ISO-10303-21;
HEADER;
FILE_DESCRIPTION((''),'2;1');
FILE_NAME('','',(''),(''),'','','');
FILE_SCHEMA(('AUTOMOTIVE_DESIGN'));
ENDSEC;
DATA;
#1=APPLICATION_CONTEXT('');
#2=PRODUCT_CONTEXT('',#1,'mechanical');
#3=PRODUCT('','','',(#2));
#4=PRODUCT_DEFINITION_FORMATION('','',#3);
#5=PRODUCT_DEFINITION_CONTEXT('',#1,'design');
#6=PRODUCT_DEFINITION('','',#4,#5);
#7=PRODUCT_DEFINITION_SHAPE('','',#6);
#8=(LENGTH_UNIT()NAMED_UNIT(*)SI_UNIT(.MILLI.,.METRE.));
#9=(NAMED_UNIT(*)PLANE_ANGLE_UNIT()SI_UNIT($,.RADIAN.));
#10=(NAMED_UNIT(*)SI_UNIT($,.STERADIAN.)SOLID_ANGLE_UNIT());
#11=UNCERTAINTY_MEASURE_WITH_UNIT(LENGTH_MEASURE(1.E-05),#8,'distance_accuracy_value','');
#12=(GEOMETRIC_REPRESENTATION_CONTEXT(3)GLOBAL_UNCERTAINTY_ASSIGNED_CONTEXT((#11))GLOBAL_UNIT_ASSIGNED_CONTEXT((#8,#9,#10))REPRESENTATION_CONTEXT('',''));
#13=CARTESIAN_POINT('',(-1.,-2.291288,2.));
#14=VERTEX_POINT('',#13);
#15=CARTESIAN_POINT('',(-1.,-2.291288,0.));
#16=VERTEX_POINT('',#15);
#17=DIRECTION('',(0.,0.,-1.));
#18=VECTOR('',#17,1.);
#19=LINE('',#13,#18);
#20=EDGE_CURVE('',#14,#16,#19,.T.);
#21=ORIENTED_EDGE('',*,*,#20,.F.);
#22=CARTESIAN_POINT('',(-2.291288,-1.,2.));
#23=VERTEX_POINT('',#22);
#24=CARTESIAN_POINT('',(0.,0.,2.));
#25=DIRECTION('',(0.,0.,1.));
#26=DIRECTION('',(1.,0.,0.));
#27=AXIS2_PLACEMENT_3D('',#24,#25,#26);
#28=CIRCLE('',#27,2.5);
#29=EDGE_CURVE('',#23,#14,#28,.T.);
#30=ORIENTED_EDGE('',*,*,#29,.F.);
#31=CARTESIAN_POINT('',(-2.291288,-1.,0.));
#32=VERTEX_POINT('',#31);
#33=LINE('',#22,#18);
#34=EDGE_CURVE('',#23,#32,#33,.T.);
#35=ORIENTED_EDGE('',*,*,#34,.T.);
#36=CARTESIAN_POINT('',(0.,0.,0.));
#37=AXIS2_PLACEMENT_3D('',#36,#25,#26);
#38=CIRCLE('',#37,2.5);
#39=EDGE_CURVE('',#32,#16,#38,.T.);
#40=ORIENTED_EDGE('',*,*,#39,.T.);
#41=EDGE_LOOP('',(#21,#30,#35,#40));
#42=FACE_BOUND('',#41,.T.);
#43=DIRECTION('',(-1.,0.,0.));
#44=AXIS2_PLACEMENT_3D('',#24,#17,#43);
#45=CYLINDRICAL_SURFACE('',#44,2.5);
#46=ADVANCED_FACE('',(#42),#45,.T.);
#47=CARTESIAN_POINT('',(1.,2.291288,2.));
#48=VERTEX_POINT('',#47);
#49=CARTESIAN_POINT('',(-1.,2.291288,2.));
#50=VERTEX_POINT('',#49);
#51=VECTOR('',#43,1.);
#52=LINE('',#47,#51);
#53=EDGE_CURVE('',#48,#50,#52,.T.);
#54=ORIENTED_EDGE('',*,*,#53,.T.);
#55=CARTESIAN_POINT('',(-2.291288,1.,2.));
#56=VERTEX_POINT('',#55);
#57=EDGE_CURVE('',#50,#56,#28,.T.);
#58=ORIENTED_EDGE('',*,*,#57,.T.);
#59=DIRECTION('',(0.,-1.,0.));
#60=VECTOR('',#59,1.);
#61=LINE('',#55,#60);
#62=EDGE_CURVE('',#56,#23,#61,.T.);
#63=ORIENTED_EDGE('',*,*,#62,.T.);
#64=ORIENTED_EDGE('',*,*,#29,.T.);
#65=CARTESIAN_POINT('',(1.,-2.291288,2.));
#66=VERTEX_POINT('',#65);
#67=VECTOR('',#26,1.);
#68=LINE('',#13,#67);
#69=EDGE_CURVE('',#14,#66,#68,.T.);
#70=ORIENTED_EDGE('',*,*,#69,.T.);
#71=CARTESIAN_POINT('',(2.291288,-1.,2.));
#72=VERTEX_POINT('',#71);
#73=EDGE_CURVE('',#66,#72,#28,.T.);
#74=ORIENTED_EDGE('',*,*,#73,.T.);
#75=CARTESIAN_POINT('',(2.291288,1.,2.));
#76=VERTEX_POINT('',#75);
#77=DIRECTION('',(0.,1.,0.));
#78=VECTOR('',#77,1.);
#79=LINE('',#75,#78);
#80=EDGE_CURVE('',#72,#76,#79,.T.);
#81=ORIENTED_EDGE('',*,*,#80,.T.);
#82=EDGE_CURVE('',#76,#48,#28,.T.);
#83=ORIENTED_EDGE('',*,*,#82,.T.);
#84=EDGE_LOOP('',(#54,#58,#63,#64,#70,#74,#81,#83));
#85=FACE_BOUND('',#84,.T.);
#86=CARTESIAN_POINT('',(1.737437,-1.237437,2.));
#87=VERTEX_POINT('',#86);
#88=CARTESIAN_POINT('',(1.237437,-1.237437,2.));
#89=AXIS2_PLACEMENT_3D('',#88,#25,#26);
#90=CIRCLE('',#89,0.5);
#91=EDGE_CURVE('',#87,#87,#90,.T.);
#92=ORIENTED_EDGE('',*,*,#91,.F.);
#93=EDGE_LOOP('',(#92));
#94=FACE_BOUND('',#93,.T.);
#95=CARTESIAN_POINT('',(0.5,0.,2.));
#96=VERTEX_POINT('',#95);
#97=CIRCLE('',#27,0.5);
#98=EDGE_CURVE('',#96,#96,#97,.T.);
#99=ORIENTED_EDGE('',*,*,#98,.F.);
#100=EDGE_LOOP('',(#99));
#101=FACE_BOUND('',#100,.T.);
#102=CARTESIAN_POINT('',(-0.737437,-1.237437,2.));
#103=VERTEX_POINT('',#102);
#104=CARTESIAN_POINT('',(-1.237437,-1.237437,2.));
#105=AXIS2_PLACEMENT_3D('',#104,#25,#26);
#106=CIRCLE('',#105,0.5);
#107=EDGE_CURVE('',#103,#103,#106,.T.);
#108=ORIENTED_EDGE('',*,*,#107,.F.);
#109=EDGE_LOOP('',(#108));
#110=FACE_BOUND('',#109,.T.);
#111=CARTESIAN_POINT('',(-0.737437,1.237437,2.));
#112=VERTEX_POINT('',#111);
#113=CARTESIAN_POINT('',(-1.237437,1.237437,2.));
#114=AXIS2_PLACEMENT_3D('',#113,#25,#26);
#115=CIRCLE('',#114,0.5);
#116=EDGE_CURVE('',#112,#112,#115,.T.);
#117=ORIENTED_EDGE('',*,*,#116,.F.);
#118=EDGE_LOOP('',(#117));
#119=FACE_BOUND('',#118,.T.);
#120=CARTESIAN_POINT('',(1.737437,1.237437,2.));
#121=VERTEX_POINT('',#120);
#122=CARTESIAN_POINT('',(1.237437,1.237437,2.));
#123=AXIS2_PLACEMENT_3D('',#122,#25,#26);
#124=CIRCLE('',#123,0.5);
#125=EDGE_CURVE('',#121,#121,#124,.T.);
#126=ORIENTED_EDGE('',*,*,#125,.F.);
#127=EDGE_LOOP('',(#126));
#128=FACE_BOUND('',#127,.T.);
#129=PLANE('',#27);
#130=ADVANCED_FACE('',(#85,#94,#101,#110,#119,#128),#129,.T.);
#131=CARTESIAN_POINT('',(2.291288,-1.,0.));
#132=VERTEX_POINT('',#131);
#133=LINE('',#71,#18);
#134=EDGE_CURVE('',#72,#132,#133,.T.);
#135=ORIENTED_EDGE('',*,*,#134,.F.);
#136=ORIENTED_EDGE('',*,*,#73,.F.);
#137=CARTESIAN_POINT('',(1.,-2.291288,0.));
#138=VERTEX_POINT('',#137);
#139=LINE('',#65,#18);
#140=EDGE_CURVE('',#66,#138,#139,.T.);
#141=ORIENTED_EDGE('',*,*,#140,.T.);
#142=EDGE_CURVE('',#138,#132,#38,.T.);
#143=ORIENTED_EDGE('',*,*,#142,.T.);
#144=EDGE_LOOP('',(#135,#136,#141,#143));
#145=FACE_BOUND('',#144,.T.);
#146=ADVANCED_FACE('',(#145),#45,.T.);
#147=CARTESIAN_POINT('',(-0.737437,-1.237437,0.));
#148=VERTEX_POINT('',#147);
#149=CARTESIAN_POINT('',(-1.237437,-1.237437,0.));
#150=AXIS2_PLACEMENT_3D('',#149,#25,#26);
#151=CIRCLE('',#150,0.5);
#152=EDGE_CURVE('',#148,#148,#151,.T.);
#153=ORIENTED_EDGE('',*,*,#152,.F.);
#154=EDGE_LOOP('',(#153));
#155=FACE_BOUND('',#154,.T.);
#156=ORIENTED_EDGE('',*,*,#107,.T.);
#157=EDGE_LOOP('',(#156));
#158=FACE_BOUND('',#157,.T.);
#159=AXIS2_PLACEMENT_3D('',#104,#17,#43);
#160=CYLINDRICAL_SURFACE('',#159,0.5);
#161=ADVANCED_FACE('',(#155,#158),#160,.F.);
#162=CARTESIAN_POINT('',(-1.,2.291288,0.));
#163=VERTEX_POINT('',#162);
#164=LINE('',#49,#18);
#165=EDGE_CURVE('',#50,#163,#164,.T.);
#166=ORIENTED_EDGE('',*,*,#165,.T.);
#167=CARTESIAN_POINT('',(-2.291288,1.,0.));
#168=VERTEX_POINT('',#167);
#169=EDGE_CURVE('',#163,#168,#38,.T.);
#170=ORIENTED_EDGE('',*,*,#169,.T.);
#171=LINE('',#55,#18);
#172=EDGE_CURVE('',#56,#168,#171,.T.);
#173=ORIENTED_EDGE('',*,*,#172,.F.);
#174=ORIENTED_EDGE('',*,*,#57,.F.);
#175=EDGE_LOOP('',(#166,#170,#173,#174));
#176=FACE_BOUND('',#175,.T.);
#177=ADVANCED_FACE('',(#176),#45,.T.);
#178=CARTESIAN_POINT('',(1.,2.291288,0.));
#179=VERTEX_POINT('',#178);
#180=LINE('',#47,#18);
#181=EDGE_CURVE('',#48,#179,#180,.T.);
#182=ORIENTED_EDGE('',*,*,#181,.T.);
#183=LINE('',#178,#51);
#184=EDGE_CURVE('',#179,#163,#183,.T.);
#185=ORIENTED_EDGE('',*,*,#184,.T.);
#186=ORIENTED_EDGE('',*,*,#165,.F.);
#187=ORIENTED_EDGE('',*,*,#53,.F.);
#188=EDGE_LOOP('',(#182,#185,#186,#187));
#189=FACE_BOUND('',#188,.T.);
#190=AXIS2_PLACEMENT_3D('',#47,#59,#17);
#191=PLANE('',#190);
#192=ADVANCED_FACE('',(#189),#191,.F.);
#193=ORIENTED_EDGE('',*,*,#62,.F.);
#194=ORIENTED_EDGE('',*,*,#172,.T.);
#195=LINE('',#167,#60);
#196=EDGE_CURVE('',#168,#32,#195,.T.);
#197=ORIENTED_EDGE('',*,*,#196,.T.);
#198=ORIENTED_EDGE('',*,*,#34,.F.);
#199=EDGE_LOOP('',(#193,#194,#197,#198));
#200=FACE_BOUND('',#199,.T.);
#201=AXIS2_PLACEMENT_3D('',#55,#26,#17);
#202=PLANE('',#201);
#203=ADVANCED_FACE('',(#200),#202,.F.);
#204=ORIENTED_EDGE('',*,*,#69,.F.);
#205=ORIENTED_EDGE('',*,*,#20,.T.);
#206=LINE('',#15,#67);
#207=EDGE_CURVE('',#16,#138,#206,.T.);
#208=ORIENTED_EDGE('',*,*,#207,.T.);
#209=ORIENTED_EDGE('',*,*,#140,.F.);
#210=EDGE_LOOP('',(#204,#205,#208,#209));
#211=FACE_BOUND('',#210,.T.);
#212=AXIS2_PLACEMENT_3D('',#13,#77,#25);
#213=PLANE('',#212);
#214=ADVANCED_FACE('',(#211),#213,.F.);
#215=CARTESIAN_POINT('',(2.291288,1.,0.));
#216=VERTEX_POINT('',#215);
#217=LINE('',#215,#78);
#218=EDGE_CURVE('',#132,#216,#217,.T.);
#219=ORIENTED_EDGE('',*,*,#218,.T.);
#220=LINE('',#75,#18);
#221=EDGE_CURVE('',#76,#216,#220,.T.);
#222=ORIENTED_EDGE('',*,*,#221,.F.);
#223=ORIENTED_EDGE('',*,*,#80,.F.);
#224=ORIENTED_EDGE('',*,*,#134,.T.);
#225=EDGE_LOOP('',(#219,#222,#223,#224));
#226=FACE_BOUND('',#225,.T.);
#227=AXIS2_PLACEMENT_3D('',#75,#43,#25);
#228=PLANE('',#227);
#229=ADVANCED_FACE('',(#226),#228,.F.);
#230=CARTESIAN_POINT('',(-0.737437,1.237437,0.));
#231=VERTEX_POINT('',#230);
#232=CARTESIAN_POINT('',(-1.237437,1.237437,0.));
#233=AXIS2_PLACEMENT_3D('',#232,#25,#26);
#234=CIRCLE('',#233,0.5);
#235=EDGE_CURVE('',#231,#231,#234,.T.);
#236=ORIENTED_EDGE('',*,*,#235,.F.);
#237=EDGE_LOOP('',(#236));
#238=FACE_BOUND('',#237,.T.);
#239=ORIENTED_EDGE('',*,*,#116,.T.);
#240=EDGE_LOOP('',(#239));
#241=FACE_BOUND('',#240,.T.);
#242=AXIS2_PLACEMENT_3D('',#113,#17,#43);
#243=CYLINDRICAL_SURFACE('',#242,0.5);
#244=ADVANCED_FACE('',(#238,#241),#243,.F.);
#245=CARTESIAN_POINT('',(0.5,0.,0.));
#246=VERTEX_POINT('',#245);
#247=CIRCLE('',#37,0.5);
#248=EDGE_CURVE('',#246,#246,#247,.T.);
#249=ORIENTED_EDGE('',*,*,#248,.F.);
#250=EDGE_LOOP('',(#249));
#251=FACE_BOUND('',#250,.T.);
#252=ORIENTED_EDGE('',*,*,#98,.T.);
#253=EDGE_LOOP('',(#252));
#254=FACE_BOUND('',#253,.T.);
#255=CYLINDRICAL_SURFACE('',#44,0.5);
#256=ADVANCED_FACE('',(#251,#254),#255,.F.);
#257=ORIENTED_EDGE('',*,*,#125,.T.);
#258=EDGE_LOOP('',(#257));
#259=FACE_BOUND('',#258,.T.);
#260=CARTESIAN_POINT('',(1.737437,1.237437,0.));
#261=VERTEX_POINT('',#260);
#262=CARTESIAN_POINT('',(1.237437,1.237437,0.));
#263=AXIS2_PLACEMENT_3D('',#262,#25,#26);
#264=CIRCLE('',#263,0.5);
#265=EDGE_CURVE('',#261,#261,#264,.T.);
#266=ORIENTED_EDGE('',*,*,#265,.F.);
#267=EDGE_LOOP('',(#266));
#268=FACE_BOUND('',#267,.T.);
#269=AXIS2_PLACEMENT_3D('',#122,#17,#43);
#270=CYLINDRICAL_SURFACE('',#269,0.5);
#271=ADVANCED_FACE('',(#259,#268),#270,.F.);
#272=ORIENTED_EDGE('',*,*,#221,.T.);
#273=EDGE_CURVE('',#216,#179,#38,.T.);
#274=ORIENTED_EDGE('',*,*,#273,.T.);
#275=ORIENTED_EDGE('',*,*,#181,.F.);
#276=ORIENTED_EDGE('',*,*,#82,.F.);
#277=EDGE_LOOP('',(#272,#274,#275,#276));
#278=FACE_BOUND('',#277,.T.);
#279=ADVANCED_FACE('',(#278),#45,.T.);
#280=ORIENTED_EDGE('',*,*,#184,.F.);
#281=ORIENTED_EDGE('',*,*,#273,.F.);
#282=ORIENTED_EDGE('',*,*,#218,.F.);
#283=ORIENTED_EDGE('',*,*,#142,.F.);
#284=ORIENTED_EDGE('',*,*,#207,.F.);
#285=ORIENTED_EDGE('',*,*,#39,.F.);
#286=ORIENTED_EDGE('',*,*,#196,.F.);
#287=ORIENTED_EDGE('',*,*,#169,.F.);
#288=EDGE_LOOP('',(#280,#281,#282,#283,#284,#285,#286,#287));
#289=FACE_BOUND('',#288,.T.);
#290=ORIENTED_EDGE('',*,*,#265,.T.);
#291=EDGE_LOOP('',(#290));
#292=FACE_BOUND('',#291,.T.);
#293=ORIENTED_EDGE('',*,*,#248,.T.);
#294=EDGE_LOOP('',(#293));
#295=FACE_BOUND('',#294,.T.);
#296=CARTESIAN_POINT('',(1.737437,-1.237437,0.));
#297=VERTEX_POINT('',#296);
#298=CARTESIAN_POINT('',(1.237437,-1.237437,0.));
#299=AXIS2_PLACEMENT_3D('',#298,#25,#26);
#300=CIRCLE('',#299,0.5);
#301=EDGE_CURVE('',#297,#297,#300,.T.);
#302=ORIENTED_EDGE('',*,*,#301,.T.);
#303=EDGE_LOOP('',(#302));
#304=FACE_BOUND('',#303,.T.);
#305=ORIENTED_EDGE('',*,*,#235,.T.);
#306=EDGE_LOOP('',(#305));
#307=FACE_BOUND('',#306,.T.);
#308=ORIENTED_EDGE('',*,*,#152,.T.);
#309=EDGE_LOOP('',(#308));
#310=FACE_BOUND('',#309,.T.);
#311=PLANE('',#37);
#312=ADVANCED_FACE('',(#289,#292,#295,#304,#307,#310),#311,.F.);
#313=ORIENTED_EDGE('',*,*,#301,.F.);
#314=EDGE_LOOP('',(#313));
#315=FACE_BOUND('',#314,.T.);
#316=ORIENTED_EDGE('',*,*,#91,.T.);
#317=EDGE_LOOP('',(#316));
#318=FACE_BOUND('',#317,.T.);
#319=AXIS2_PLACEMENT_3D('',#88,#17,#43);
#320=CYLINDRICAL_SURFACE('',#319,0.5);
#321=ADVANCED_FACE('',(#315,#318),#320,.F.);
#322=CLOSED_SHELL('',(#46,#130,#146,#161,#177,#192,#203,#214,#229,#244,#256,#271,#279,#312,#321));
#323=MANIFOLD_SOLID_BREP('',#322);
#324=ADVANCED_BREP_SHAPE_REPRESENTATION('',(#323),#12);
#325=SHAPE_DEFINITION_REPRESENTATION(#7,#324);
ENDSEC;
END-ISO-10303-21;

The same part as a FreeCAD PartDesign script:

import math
import FreeCAD as App
import Part
import Sketcher
Q = App.Units.Quantity

doc = App.newDocument("Part")
body = doc.addObject("PartDesign::Body", "Body")

sketch1 = body.newObject("Sketcher::SketchObject", "Sketch")
sketch1.AttachmentSupport = (doc.getObject("XY_Plane"), [""])
sketch1.MapMode = "FlatFace"
sketch1.addGeometry([
    Part.LineSegment(App.Vector(1, 2.291288, 0), App.Vector(-1, 2.291288, 0)),
    Part.ArcOfCircle(Part.Circle(App.Vector(0, 0, 0), App.Vector(0, 0, 1), 2.5), math.radians(113.578178), math.radians(156.421822)),
    Part.LineSegment(App.Vector(-2.291288, 1, 0), App.Vector(-2.291288, -1, 0)),
    Part.ArcOfCircle(Part.Circle(App.Vector(0, 0, 0), App.Vector(0, 0, 1), 2.5), math.radians(-156.421822), math.radians(-113.578178)),
    Part.LineSegment(App.Vector(-1, -2.291288, 0), App.Vector(1, -2.291288, 0)),
    Part.ArcOfCircle(Part.Circle(App.Vector(0, 0, 0), App.Vector(0, 0, 1), 2.5), math.radians(-66.421822), math.radians(-23.578178)),
    Part.LineSegment(App.Vector(2.291288, -1, 0), App.Vector(2.291288, 1, 0)),
    Part.ArcOfCircle(Part.Circle(App.Vector(0, 0, 0), App.Vector(0, 0, 1), 2.5), math.radians(23.578178), math.radians(66.421822)),
    Part.Circle(App.Vector(-1.237437, -1.237437, 0), App.Vector(0, 0, 1), 0.5),
    Part.Circle(App.Vector(1.237437, -1.237437, 0), App.Vector(0, 0, 1), 0.5),
    Part.Circle(App.Vector(-1.237437, 1.237437, 0), App.Vector(0, 0, 1), 0.5),
    Part.Circle(App.Vector(0, 0, 0), App.Vector(0, 0, 1), 0.5),
    Part.Circle(App.Vector(1.237437, 1.237437, 0), App.Vector(0, 0, 1), 0.5),
], False)
sketch1.addConstraint([
    Sketcher.Constraint("Coincident", 0, 2, 1, 1),
    Sketcher.Constraint("Coincident", 1, 2, 2, 1),
    Sketcher.Constraint("Coincident", 2, 2, 3, 1),
    Sketcher.Constraint("Coincident", 3, 2, 4, 1),
    Sketcher.Constraint("Coincident", 4, 2, 5, 1),
    Sketcher.Constraint("Coincident", 5, 2, 6, 1),
    Sketcher.Constraint("Coincident", 6, 2, 7, 1),
    Sketcher.Constraint("Coincident", 7, 2, 0, 1),
    Sketcher.Constraint("Horizontal", 0),
    Sketcher.Constraint("Vertical", 2),
    Sketcher.Constraint("Horizontal", 4),
    Sketcher.Constraint("Vertical", 6),
    Sketcher.Constraint("Coincident", 1, 3, -1, 1),
    Sketcher.Constraint("Coincident", 3, 3, -1, 1),
    Sketcher.Constraint("Coincident", 5, 3, -1, 1),
    Sketcher.Constraint("Coincident", 7, 3, -1, 1),
    Sketcher.Constraint("Coincident", 11, 3, -1, 1),
    Sketcher.Constraint("Equal", 1, 3),
    Sketcher.Constraint("Equal", 3, 5),
    Sketcher.Constraint("Equal", 5, 7),
    Sketcher.Constraint("Equal", 8, 9),
    Sketcher.Constraint("Equal", 9, 10),
    Sketcher.Constraint("Equal", 10, 11),
    Sketcher.Constraint("Equal", 11, 12),
    Sketcher.Constraint("Symmetric", 9, 3, 10, 3, -1, 1),
    Sketcher.Constraint("Symmetric", 8, 3, 12, 3, -1, 1),
    Sketcher.Constraint("Symmetric", 8, 3, 9, 3, -2),
    Sketcher.Constraint("Horizontal", 2, 2, 5, 2),
    Sketcher.Constraint("Vertical", 0, 2, 3, 2),
    Sketcher.Constraint("Equal", 4, 2),
    Sketcher.Constraint("Diameter", 8, Q("1 mm")),
    Sketcher.Constraint("Radius", 1, Q("2.5 mm")),
    Sketcher.Constraint("DistanceX", 0, 2, 0, 1, Q("2 mm")),
    Sketcher.Constraint("DistanceY", 10, 3, 0, 2, Q("1.053851 mm")),
    Sketcher.Constraint("DistanceX", 1, 2, 10, 3, Q("1.053851 mm")),
])
pad1 = body.newObject("PartDesign::Pad", "Pad")
pad1.Profile = sketch1
pad1.Length = 2

doc.recompute()
